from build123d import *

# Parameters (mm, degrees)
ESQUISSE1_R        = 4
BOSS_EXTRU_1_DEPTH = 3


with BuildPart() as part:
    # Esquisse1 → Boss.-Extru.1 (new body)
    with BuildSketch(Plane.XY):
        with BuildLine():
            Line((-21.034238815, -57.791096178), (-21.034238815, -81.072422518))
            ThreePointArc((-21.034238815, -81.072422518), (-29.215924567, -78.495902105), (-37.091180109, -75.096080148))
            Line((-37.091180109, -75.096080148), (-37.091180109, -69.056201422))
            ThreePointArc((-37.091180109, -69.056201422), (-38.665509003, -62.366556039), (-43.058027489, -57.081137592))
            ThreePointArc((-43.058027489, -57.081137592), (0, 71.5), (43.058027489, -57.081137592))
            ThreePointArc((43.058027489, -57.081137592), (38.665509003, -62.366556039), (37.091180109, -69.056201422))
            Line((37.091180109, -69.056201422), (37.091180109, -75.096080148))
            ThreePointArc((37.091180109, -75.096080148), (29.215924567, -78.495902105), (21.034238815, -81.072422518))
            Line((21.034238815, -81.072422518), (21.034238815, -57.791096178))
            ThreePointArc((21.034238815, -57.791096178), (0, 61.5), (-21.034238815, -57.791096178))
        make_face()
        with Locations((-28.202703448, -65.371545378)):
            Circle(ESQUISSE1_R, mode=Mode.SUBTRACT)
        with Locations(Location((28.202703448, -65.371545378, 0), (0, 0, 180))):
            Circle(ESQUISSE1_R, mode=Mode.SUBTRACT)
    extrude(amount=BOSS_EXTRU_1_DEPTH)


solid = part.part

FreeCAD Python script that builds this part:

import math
import FreeCAD as App
import Part
import Sketcher

doc = App.newDocument("Part")
body = doc.addObject("PartDesign::Body", "Body")

sketch1 = body.newObject("Sketcher::SketchObject", "Sketch")
sketch1.AttachmentSupport = (doc.getObject("XY_Plane"), [""])
sketch1.MapMode = "FlatFace"
sketch1.addGeometry([
    Part.LineSegment(App.Vector(-21, -81.1, 0), App.Vector(-21, -57.8, 0)),
    Part.ArcOfCircle(Part.Circle(App.Vector(0, 0, 0), App.Vector(0, 0, 1), 61.5), math.radians(-70), math.radians(250)),
    Part.LineSegment(App.Vector(21, -57.8, 0), App.Vector(21, -81.1, 0)),
    Part.ArcOfCircle(Part.Circle(App.Vector(0, 0, 0), App.Vector(0, 0, 1), 83.8), math.radians(-75.46), math.radians(-63.71)),
    Part.LineSegment(App.Vector(37.1, -75.1, 0), App.Vector(37.1, -69.1, 0)),
    Part.ArcOfCircle(Part.Circle(App.Vector(52.1, -69.1, 0), App.Vector(0, 0, 1), 15), math.radians(127), math.radians(180)),
    Part.ArcOfCircle(Part.Circle(App.Vector(0, 0, 0), App.Vector(0, 0, 1), 71.5), math.radians(-53), math.radians(233)),
    Part.ArcOfCircle(Part.Circle(App.Vector(-52.1, -69.1, 0), App.Vector(0, 0, 1), 15), math.radians(0), math.radians(53)),
    Part.LineSegment(App.Vector(-37.1, -69.1, 0), App.Vector(-37.1, -75.1, 0)),
    Part.ArcOfCircle(Part.Circle(App.Vector(0, 0, 0), App.Vector(0, 0, 1), 83.8), math.radians(-116.29), math.radians(-104.54)),
    Part.Circle(App.Vector(28.2, -65.4, 0), App.Vector(0, 0, 1), 4),
    Part.Circle(App.Vector(-28.2, -65.4, 0), App.Vector(0, 0, 1), 4),
], False)
sketch1.addConstraint([
    Sketcher.Constraint("Coincident", 0, 2, 1, 2),
    Sketcher.Constraint("Coincident", 1, 1, 2, 1),
    Sketcher.Constraint("Coincident", 2, 2, 3, 1),
    Sketcher.Constraint("Coincident", 3, 2, 4, 1),
    Sketcher.Constraint("Tangent", 4, 2, 5, 2),
    Sketcher.Constraint("Tangent", 5, 1, 6, 1),
    Sketcher.Constraint("Tangent", 6, 2, 7, 2),
    Sketcher.Constraint("Tangent", 7, 1, 8, 1),
    Sketcher.Constraint("Coincident", 8, 2, 9, 1),
    Sketcher.Constraint("Coincident", 9, 2, 0, 1),
    Sketcher.Constraint("Vertical", 0),
    Sketcher.Constraint("Vertical", 2),
    Sketcher.Constraint("Vertical", 4),
    Sketcher.Constraint("Vertical", 8),
    Sketcher.Constraint("Coincident", 1, 3, -1, 1),
    Sketcher.Constraint("Coincident", 3, 3, -1, 1),
    Sketcher.Constraint("Coincident", 6, 3, -1, 1),
    Sketcher.Constraint("Coincident", 9, 3, -1, 1),
    Sketcher.Constraint("Equal", 5, 7),
    Sketcher.Constraint("Equal", 3, 9),
    Sketcher.Constraint("Equal", 10, 11),
    Sketcher.Constraint("Symmetric", 10, 3, 11, 3, -2),
    Sketcher.Constraint("Horizontal", 5, 3, 7, 3),
    Sketcher.Constraint("Horizontal", 0, 2, 1, 1),
    Sketcher.Constraint("Diameter", 10, 8.0),
    Sketcher.Constraint("Radius", 5, 15.0),
    Sketcher.Constraint("Radius", 1, 61.5),
    Sketcher.Constraint("Radius", 6, 71.5),
    Sketcher.Constraint("Radius", 3, 83.756653),
    Sketcher.Constraint("DistanceY", 4, 1, 4, 2, 6.039879),
    Sketcher.Constraint("DistanceY", 0, 1, 0, 2, 23.281326),
    Sketcher.Constraint("DistanceY", 11, 3, 0, 2, 7.580449),
    Sketcher.Constraint("DistanceX", -1, 1, 10, 3, 28.202703),
])
pad1 = body.newObject("PartDesign::Pad", "Pad")
pad1.Profile = sketch1
pad1.Length = 3

doc.recompute()
